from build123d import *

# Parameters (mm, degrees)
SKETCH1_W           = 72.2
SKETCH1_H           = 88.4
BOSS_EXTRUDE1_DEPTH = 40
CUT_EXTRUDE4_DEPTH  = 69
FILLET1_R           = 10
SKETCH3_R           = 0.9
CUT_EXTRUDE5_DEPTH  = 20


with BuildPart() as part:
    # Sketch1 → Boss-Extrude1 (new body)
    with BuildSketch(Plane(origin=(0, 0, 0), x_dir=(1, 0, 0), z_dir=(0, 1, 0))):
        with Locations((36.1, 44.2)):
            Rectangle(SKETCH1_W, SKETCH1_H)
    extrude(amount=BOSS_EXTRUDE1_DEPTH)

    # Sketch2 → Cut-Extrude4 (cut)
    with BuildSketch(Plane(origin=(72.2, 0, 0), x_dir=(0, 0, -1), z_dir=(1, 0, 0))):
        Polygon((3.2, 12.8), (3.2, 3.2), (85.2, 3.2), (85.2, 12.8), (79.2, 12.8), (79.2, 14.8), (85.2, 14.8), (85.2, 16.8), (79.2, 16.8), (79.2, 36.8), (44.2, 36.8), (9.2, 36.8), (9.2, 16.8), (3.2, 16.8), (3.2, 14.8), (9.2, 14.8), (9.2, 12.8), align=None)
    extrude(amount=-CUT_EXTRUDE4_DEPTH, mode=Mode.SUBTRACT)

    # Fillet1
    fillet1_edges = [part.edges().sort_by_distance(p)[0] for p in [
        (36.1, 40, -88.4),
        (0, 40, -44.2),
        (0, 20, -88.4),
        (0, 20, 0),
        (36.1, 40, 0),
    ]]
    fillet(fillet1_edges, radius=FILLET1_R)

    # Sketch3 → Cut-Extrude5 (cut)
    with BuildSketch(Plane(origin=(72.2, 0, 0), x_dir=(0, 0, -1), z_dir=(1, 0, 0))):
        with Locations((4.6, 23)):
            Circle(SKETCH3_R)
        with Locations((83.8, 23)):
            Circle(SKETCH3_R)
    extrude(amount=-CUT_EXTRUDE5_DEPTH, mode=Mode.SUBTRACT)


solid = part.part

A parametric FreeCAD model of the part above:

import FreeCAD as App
import Part
import Sketcher
from FreeCAD import Vector


def edges_at(feature, points):
    """Names of the edges that pass closest to the given points."""
    edges = feature.Shape.Edges
    near = lambda p: min(range(len(edges)), key=lambda i: edges[i].distToShape(Part.Vertex(*p))[0])
    return sorted({f"Edge{near(p) + 1}" for p in points})


def add_polygon(sketch, points):
    """Adds a closed chain of lines whose ends are joined by coincident constraints."""
    first, n = sketch.GeometryCount, len(points)
    for a, b in zip(points, points[1:] + points[:1]):
        sketch.addGeometry(Part.LineSegment(App.Vector(*a, 0), App.Vector(*b, 0)), False)
    for i in range(n):
        sketch.addConstraint(Sketcher.Constraint("Coincident", first + i, 2, first + (i + 1) % n, 1))

doc = App.newDocument("Part")
params = doc.addObject("Spreadsheet::Sheet", "Params")
for row, (alias, value) in enumerate([
    ("sketch1_width", "72.2 mm"),
    ("sketch1_height", "88.4 mm"),
    ("pad1_length", "40 mm"),
    ("sketch2_width", "2 mm"),
    ("sketch2_width2", "20 mm"),
    ("sketch2_height", "82 mm"),
    ("sketch2_height2", "6 mm"),
    ("sketch2_width3", "9.6 mm"),
    ("pocket1_length", "69 mm"),
    ("fillet_radius", "10 mm"),
    ("sketch3_diameter", "1.8 mm"),
    ("pocket2_length", "20 mm"),
], start=1):
    params.set(f"A{row}", alias)
    params.set(f"B{row}", "=" + value)
    params.setAlias(f"B{row}", alias)

body = doc.addObject("PartDesign::Body", "Body")

# Sketch on XZ plane
sketch1 = doc.addObject("Sketcher::SketchObject", "Sketch")
body.addObject(sketch1)
sketch1.AttachmentSupport = (doc.XZ_Plane, [""])
sketch1.MapMode = "FlatFace"
add_polygon(sketch1, [(0, -88), (0, 0), (72, 0), (72, -88)])  # lines 0-3
sketch1.addConstraint([
    Sketcher.Constraint("Vertical", 0),
    Sketcher.Constraint("Horizontal", 1),
    Sketcher.Constraint("Vertical", 2),
    Sketcher.Constraint("Horizontal", 3),
    Sketcher.Constraint("Coincident", 0, 2, -1, 1),
    Sketcher.Constraint("DistanceX", 1, 1, 1, 2, 72.2),
    Sketcher.Constraint("DistanceY", 0, 1, 0, 2, 88.4),
])
sketch1.setExpression("Constraints[9]", "Params.sketch1_width")
sketch1.setExpression("Constraints[10]", "Params.sketch1_height")
pad1 = doc.addObject("PartDesign::Pad", "Pad")
body.addObject(pad1)
pad1.Profile = sketch1
pad1.setExpression("Length", "Params.pad1_length")
pad1.Reversed = True

# Sketch on YZ plane
sketch2 = doc.addObject("Sketcher::SketchObject", "Sketch001")
body.addObject(sketch2)
sketch2.AttachmentSupport = (doc.YZ_Plane, [""])
sketch2.MapMode = "FlatFace"
sketch2.AttachmentOffset = App.Placement(Vector(0, 0, 72.2), App.Rotation())
add_polygon(sketch2, [(12.8, -3.2), (3.2, -3.2), (3.2, -85.2), (12.8, -85.2), (12.8, -79.2), (14.8, -79.2), (14.8, -85.2), (16.8, -85.2), (16.8, -79.2), (36.8, -79.2), (36.8, -9.2), (16.8, -9.2), (16.8, -3.2), (14.8, -3.2), (14.8, -9.2), (12.8, -9.2)])  # lines 0-15
sketch2.addConstraint([
    Sketcher.Constraint("Horizontal", 0),
    Sketcher.Constraint("Vertical", 1),
    Sketcher.Constraint("Horizontal", 2),
    Sketcher.Constraint("Vertical", 3),
    Sketcher.Constraint("Horizontal", 4),
    Sketcher.Constraint("Vertical", 5),
    Sketcher.Constraint("Horizontal", 6),
    Sketcher.Constraint("Vertical", 7),
    Sketcher.Constraint("Horizontal", 8),
    Sketcher.Constraint("Vertical", 9),
    Sketcher.Constraint("Horizontal", 10),
    Sketcher.Constraint("Vertical", 11),
    Sketcher.Constraint("Horizontal", 12),
    Sketcher.Constraint("Vertical", 13),
    Sketcher.Constraint("Horizontal", 14),
    Sketcher.Constraint("Vertical", 15),
    Sketcher.Constraint("Horizontal", 2, 2, 5, 2),
    Sketcher.Constraint("Horizontal", 4, 2, 7, 2),
    Sketcher.Constraint("Horizontal", 0, 2, 11, 2),
    Sketcher.Constraint("Horizontal", 10, 2, 13, 2),
    Sketcher.Constraint("Vertical", 7, 2, 10, 2),
    Sketcher.Constraint("Vertical", 5, 2, 12, 2),
    Sketcher.Constraint("Vertical", 3, 2, 14, 2),
    Sketcher.Constraint("Equal", 4, 6),
    Sketcher.Constraint("Equal", 7, 11),
    Sketcher.Constraint("DistanceX", 4, 1, 4, 2, 2.0),
    Sketcher.Constraint("DistanceX", 8, 1, 8, 2, 20.0),
    Sketcher.Constraint("DistanceY", 1, 2, 1, 1, 82.0),
    Sketcher.Constraint("DistanceY", 3, 1, 3, 2, 6.0),
    Sketcher.Constraint("DistanceX", 0, 2, 0, 1, 9.6),
    Sketcher.Constraint("DistanceX", -1, 1, 0, 2, 3.2),
    Sketcher.Constraint("DistanceY", 0, 2, -1, 1, 3.2),
])
sketch2.setExpression("Constraints[41]", "Params.sketch2_width")
sketch2.setExpression("Constraints[42]", "Params.sketch2_width2")
sketch2.setExpression("Constraints[43]", "Params.sketch2_height")
sketch2.setExpression("Constraints[44]", "Params.sketch2_height2")
sketch2.setExpression("Constraints[45]", "Params.sketch2_width3")
pocket1 = doc.addObject("PartDesign::Pocket", "Pocket")
body.addObject(pocket1)
pocket1.Profile = sketch2
pocket1.setExpression("Length", "Params.pocket1_length")
doc.recompute()

fillet = doc.addObject("PartDesign::Fillet", "Fillet")
body.addObject(fillet)
fillet.Base = (pocket1, edges_at(pocket1, [
    (36.1, 40, -88.4),
    (0, 40, -44.2),
    (0, 20, -88.4),
    (0, 20, 0),
    (36.1, 40, 0),
]))
fillet.setExpression("Radius", "Params.fillet_radius")

# Sketch on YZ plane
sketch3 = doc.addObject("Sketcher::SketchObject", "Sketch002")
body.addObject(sketch3)
sketch3.AttachmentSupport = (doc.YZ_Plane, [""])
sketch3.MapMode = "FlatFace"
sketch3.AttachmentOffset = App.Placement(Vector(0, 0, 72.2), App.Rotation())
sketch3.addGeometry([
    Part.Circle(Vector(23, -4.6, 0), Vector(0, 0, 1), 0.9),
    Part.Circle(Vector(23, -83.8, 0), Vector(0, 0, 1), 0.9),
], False)
sketch3.addConstraint([
    Sketcher.Constraint("Equal", 0, 1),
    Sketcher.Constraint("Vertical", 0, 3, 1, 3),
    Sketcher.Constraint("Diameter", 0, 1.8),
    Sketcher.Constraint("DistanceX", -1, 1, 0, 3, 23.0),
    Sketcher.Constraint("DistanceY", 0, 3, -1, 1, 4.6),
    Sketcher.Constraint("DistanceY", 1, 3, -1, 1, 83.8),
])
sketch3.setExpression("Constraints[2]", "Params.sketch3_diameter")
pocket2 = doc.addObject("PartDesign::Pocket", "Pocket001")
body.addObject(pocket2)
pocket2.Profile = sketch3
pocket2.setExpression("Length", "Params.pocket2_length")

doc.recompute()
